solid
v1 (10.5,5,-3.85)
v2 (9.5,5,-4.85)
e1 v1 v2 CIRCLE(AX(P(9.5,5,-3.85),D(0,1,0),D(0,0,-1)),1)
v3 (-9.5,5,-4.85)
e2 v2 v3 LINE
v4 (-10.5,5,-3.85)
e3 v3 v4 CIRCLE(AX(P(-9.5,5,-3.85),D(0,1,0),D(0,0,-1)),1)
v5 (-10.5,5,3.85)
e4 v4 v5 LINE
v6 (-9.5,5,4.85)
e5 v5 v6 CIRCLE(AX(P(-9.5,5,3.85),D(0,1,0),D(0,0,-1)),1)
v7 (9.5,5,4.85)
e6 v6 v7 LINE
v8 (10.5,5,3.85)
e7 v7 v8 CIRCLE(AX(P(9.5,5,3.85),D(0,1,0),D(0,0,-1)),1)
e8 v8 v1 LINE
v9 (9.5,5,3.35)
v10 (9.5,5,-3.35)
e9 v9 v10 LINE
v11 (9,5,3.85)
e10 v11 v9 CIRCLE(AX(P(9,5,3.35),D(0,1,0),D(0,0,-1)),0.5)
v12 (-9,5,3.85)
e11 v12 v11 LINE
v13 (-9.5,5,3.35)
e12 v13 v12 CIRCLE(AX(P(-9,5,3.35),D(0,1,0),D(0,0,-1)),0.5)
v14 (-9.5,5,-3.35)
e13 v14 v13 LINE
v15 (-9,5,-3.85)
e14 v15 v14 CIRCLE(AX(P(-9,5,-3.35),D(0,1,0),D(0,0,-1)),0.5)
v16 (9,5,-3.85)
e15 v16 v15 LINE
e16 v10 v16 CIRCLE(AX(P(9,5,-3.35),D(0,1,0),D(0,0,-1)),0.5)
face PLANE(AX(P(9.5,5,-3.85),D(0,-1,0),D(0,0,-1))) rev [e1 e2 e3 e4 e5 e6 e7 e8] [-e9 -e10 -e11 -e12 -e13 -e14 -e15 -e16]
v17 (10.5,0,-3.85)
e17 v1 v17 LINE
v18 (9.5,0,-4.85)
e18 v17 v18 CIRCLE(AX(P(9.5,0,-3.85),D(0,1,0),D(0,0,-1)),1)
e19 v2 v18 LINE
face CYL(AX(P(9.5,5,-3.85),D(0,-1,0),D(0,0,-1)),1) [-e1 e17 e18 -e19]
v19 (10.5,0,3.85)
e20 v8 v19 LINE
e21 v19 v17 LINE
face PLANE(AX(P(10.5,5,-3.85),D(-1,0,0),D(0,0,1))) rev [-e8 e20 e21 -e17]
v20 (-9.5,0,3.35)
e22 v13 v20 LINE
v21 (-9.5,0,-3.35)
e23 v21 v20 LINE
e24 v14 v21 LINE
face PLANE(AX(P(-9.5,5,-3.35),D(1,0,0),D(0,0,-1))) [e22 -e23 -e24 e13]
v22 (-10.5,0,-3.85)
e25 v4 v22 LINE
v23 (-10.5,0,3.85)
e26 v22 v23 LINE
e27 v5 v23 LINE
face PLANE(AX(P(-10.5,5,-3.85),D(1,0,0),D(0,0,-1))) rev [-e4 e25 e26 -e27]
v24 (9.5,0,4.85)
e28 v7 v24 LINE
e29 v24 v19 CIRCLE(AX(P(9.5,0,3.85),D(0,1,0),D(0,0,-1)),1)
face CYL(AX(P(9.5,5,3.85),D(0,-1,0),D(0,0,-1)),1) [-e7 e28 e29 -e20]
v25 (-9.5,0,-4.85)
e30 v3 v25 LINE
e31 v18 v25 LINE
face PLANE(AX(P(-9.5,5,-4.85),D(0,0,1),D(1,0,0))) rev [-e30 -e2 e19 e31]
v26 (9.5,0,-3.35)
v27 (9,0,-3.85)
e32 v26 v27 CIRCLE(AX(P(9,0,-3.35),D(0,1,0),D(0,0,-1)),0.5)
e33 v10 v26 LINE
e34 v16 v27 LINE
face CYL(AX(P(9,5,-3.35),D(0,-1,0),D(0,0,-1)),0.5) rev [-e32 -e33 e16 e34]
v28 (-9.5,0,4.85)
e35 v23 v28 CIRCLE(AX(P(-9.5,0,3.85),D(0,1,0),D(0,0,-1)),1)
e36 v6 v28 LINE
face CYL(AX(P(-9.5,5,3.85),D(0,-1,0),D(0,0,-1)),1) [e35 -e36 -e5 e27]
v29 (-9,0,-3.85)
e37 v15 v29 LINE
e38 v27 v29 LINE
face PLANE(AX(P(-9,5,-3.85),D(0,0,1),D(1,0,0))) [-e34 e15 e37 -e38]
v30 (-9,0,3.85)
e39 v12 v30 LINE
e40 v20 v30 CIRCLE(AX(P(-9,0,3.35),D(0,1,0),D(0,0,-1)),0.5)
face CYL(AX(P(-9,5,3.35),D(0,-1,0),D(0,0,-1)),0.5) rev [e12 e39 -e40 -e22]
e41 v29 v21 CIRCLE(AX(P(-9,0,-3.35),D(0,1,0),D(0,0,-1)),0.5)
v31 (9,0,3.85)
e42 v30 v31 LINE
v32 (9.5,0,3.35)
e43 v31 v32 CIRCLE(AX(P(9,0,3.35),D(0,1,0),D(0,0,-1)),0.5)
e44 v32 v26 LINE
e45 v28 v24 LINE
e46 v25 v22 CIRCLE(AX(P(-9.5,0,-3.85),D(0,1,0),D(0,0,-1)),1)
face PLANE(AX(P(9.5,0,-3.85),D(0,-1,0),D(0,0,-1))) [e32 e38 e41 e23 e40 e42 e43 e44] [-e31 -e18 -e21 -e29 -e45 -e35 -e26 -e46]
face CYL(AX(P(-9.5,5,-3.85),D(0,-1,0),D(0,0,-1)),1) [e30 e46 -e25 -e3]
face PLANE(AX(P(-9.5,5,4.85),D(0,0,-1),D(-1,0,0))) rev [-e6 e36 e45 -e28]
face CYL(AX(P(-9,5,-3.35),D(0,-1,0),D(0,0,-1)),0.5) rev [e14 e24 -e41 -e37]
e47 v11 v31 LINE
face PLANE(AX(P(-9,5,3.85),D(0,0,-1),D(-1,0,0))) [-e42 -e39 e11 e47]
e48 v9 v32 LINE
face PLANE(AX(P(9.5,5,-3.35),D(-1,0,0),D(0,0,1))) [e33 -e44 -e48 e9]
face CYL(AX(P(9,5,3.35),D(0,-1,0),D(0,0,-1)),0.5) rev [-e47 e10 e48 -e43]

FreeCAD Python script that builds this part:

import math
import FreeCAD as App
import Part
import Sketcher
from FreeCAD import Vector

doc = App.newDocument("Part")
body = doc.addObject("PartDesign::Body", "Body")

# Sketch on XZ plane
sketch1 = body.newObject("Sketcher::SketchObject", "Sketch")
sketch1.AttachmentSupport = (doc.getObject("XZ_Plane"), [""])
sketch1.MapMode = "FlatFace"
sketch1.addGeometry([
    Part.LineSegment(Vector(-10.5, -3.85, 0), Vector(-10.5, 3.85, 0)),  # 0
    Part.ArcOfCircle(Part.Circle(Vector(-9.5, 3.85, 0), Vector(0, 0, 1), 1), math.radians(90), math.radians(180)),  # 1
    Part.LineSegment(Vector(-9.5, 4.85, 0), Vector(9.5, 4.85, 0)),  # 2
    Part.ArcOfCircle(Part.Circle(Vector(9.5, 3.85, 0), Vector(0, 0, 1), 1), math.radians(0), math.radians(90)),  # 3
    Part.LineSegment(Vector(10.5, 3.85, 0), Vector(10.5, -3.85, 0)),  # 4
    Part.ArcOfCircle(Part.Circle(Vector(9.5, -3.85, 0), Vector(0, 0, 1), 1), math.radians(-90), math.radians(0)),  # 5
    Part.LineSegment(Vector(9.5, -4.85, 0), Vector(-9.5, -4.85, 0)),  # 6
    Part.ArcOfCircle(Part.Circle(Vector(-9.5, -3.85, 0), Vector(0, 0, 1), 1), math.radians(-180), math.radians(-90)),  # 7
    Part.ArcOfCircle(Part.Circle(Vector(-9, -3.35, 0), Vector(0, 0, 1), 0.5), math.radians(180), math.radians(270)),  # 8
    Part.LineSegment(Vector(-9, -3.85, 0), Vector(9, -3.85, 0)),  # 9
    Part.ArcOfCircle(Part.Circle(Vector(9, -3.35, 0), Vector(0, 0, 1), 0.5), math.radians(-90), math.radians(0)),  # 10
    Part.LineSegment(Vector(9.5, -3.35, 0), Vector(9.5, 3.35, 0)),  # 11
    Part.ArcOfCircle(Part.Circle(Vector(9, 3.35, 0), Vector(0, 0, 1), 0.5), math.radians(0), math.radians(90)),  # 12
    Part.LineSegment(Vector(9, 3.85, 0), Vector(-9, 3.85, 0)),  # 13
    Part.ArcOfCircle(Part.Circle(Vector(-9, 3.35, 0), Vector(0, 0, 1), 0.5), math.radians(90), math.radians(180)),  # 14
    Part.LineSegment(Vector(-9.5, 3.35, 0), Vector(-9.5, -3.35, 0)),  # 15
], False)
sketch1.addConstraint([
    Sketcher.Constraint("Tangent", 0, 2, 1, 2),
    Sketcher.Constraint("Tangent", 1, 1, 2, 1),
    Sketcher.Constraint("Tangent", 2, 2, 3, 2),
    Sketcher.Constraint("Tangent", 3, 1, 4, 1),
    Sketcher.Constraint("Tangent", 4, 2, 5, 2),
    Sketcher.Constraint("Tangent", 5, 1, 6, 1),
    Sketcher.Constraint("Tangent", 6, 2, 7, 2),
    Sketcher.Constraint("Tangent", 7, 1, 0, 1),
    Sketcher.Constraint("Tangent", 8, 2, 9, 1),
    Sketcher.Constraint("Tangent", 9, 2, 10, 1),
    Sketcher.Constraint("Tangent", 10, 2, 11, 1),
    Sketcher.Constraint("Tangent", 11, 2, 12, 1),
    Sketcher.Constraint("Tangent", 12, 2, 13, 1),
    Sketcher.Constraint("Tangent", 13, 2, 14, 1),
    Sketcher.Constraint("Tangent", 14, 2, 15, 1),
    Sketcher.Constraint("Tangent", 15, 2, 8, 1),
    Sketcher.Constraint("Vertical", 0),
    Sketcher.Constraint("Horizontal", 2),
    Sketcher.Constraint("Vertical", 4),
    Sketcher.Constraint("Horizontal", 6),
    Sketcher.Constraint("Horizontal", 9),
    Sketcher.Constraint("Vertical", 11),
    Sketcher.Constraint("Horizontal", 13),
    Sketcher.Constraint("Vertical", 15),
    Sketcher.Constraint("Equal", 1, 3),
    Sketcher.Constraint("Equal", 3, 5),
    Sketcher.Constraint("Equal", 5, 7),
    Sketcher.Constraint("Equal", 8, 10),
    Sketcher.Constraint("Equal", 10, 12),
    Sketcher.Constraint("Equal", 12, 14),
    Sketcher.Constraint("Symmetric", 1, 3, 5, 3, -1, 1),
    Sketcher.Constraint("Symmetric", 8, 3, 12, 3, -1, 1),
    Sketcher.Constraint("Horizontal", 7, 1, 8, 2),
    Sketcher.Constraint("Vertical", 5, 1, 10, 2),
    Sketcher.Constraint("Radius", 1, 1.0),
    Sketcher.Constraint("Radius", 8, 0.5),
    Sketcher.Constraint("DistanceX", 2, 1, 2, 2, 19.0),
    Sketcher.Constraint("DistanceY", 0, 1, 0, 2, 7.7),
])
pad1 = body.newObject("PartDesign::Pad", "Pad")
pad1.Profile = sketch1
pad1.Length = 5
pad1.Reversed = True

doc.recompute()
